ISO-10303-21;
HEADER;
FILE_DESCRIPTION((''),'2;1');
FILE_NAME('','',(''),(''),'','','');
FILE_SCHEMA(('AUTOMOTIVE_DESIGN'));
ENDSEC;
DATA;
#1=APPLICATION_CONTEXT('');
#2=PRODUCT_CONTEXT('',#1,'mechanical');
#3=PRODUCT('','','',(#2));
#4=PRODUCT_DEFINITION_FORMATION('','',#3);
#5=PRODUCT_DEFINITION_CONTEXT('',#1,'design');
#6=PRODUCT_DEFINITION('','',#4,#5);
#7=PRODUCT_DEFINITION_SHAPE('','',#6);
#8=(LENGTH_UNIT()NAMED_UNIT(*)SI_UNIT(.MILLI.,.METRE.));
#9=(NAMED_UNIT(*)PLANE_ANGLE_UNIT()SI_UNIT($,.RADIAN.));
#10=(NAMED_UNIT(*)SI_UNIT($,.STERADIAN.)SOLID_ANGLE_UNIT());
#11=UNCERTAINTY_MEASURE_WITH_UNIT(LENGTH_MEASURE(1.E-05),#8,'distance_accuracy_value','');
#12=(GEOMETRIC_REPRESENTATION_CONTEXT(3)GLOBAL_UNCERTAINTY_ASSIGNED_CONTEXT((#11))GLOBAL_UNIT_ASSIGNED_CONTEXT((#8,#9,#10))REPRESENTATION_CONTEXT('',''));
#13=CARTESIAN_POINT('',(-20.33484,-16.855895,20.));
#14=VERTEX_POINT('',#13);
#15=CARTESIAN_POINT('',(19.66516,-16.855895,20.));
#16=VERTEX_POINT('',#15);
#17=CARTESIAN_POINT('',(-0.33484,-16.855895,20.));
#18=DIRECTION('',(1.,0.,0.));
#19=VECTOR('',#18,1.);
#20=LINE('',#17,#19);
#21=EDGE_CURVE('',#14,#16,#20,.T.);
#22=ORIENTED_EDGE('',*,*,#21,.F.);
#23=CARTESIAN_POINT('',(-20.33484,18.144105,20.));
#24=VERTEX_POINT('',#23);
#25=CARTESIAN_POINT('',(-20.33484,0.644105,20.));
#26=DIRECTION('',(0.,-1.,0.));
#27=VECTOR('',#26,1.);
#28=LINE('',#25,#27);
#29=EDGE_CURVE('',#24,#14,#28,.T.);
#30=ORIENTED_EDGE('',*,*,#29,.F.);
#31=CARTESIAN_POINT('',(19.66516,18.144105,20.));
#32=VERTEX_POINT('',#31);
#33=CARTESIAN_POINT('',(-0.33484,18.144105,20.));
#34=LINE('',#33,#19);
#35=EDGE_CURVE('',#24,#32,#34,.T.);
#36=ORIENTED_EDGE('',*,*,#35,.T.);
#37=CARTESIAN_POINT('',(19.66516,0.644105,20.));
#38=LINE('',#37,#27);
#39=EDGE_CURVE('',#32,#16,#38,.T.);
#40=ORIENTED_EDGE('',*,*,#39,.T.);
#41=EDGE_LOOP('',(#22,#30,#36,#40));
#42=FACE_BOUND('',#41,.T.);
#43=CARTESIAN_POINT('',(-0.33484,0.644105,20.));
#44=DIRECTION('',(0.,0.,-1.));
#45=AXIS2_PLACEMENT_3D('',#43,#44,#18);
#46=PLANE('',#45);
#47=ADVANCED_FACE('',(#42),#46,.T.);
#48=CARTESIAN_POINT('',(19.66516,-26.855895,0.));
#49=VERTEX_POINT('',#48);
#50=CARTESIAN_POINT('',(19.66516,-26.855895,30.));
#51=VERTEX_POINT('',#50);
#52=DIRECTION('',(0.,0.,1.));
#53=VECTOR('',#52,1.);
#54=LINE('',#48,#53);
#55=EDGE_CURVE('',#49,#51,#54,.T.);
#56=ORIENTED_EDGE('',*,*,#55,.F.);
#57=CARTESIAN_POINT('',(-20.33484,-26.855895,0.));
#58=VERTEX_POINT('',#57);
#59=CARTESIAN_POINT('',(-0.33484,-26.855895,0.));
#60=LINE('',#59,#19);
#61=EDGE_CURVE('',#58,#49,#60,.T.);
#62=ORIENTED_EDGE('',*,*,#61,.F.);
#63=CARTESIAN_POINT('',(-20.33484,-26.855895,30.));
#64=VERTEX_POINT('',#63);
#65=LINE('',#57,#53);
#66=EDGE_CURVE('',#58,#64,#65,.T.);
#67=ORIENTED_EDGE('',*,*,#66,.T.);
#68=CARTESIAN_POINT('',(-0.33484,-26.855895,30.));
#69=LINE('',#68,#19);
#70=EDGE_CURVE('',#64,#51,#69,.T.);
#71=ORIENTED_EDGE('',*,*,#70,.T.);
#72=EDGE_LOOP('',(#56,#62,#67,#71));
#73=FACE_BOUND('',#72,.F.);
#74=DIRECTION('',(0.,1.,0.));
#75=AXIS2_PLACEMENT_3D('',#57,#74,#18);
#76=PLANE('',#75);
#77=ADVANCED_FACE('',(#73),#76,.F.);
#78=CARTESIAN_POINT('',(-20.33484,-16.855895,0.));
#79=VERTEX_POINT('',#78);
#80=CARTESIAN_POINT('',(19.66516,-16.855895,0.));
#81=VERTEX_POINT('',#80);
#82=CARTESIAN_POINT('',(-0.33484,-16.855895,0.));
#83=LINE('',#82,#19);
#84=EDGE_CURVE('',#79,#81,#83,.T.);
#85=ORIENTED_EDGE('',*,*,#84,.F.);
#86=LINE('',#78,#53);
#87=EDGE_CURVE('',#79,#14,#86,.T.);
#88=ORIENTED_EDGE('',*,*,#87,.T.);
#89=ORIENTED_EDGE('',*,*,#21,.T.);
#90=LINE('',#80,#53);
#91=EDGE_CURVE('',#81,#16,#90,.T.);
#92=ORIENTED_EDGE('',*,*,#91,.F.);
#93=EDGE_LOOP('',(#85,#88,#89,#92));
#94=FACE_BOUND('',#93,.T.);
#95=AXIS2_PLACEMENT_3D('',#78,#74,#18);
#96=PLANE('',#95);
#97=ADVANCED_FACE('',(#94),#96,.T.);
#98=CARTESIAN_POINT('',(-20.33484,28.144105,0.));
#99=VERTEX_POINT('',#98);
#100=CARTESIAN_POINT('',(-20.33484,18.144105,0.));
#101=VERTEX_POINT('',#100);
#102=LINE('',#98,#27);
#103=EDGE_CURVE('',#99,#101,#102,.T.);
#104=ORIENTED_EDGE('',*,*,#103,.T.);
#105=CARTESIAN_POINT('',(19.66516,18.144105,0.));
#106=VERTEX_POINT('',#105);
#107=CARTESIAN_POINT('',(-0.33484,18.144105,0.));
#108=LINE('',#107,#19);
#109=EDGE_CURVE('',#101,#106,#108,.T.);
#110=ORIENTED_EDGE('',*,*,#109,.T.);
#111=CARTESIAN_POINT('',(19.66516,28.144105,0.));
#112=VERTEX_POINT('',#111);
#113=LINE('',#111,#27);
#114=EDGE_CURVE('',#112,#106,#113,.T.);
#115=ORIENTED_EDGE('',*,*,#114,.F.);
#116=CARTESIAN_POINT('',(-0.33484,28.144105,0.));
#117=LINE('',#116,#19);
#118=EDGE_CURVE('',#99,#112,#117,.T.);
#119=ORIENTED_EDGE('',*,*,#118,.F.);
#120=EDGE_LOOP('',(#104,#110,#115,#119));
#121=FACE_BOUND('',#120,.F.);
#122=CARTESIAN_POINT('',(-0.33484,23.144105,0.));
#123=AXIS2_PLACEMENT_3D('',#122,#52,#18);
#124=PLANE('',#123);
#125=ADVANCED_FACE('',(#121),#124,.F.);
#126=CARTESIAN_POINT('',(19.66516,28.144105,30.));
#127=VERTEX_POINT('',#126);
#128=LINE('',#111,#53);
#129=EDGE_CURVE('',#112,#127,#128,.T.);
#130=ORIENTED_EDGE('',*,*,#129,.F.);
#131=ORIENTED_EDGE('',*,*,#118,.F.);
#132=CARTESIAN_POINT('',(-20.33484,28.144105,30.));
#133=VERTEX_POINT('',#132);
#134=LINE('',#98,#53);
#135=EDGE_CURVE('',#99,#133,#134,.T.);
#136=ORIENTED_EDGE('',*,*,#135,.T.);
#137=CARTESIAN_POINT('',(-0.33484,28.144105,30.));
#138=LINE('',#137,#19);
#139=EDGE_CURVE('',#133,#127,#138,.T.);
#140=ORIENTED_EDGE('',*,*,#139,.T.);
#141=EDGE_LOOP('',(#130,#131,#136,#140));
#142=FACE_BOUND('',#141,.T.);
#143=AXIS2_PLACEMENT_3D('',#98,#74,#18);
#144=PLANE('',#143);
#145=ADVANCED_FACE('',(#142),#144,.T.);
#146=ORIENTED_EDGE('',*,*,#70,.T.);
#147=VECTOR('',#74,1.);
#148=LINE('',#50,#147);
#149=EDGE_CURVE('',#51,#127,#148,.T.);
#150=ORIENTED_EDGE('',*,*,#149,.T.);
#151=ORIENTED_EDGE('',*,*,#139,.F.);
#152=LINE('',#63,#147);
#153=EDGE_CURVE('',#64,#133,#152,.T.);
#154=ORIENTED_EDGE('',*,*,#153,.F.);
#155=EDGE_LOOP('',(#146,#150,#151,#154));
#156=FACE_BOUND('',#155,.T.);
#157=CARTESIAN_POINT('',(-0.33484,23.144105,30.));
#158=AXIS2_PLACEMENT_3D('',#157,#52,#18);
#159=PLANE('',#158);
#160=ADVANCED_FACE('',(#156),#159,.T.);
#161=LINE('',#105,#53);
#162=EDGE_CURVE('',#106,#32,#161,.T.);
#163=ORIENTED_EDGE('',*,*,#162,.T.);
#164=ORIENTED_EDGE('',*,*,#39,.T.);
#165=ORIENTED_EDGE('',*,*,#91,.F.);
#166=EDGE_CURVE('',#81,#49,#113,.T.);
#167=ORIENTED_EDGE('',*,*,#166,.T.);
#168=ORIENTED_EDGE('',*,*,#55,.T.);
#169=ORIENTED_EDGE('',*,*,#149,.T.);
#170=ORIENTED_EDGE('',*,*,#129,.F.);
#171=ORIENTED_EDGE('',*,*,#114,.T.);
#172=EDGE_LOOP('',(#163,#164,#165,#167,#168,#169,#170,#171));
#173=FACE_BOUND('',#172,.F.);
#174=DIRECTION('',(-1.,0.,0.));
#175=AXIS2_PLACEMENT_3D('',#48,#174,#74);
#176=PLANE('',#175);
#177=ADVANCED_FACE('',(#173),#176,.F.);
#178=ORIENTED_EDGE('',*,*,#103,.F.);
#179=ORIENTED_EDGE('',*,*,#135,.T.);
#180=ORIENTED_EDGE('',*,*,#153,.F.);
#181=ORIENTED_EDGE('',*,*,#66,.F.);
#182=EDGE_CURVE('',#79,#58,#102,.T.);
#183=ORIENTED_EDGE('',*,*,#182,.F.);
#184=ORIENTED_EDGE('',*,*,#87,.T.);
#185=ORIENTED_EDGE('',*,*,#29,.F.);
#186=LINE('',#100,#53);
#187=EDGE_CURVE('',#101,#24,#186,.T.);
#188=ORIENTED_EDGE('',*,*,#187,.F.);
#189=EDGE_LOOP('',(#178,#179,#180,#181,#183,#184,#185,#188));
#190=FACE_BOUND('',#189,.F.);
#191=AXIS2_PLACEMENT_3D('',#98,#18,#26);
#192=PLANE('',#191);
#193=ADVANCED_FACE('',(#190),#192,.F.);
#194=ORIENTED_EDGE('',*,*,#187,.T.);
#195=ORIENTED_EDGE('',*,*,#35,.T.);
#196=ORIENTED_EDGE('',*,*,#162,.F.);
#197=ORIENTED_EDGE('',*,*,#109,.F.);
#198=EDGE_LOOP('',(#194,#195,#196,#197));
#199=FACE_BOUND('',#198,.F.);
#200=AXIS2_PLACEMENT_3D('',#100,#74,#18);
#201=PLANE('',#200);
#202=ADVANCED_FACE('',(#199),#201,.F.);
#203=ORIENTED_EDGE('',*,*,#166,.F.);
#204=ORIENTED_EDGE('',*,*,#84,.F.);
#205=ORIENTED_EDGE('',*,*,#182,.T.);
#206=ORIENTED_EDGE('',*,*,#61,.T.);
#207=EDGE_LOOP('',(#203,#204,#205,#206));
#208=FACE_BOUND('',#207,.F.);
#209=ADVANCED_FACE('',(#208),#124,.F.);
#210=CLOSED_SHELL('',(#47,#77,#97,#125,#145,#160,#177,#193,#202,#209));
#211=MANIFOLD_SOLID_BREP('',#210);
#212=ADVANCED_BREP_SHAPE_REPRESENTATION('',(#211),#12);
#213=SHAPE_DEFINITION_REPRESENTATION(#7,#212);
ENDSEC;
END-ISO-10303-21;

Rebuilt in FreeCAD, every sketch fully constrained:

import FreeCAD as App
import Part
import Sketcher


def add_polygon(sketch, points):
    """Adds a closed chain of lines whose ends are joined by coincident constraints."""
    first, n = sketch.GeometryCount, len(points)
    for a, b in zip(points, points[1:] + points[:1]):
        sketch.addGeometry(Part.LineSegment(App.Vector(*a, 0), App.Vector(*b, 0)), False)
    for i in range(n):
        sketch.addConstraint(Sketcher.Constraint("Coincident", first + i, 2, first + (i + 1) % n, 1))

doc = App.newDocument("Part")
body = doc.addObject("PartDesign::Body", "Body")

# Sketch on XY plane
sketch1 = body.newObject("Sketcher::SketchObject", "Sketch")
sketch1.AttachmentSupport = (doc.getObject("XY_Plane"), [""])
sketch1.MapMode = "FlatFace"
add_polygon(sketch1, [(-20, 18), (-20, -17), (20, -17), (20, 18)])  # lines 0-3
sketch1.addConstraint([
    Sketcher.Constraint("Vertical", 0),
    Sketcher.Constraint("Horizontal", 1),
    Sketcher.Constraint("Vertical", 2),
    Sketcher.Constraint("Horizontal", 3),
    Sketcher.Constraint("DistanceX", 1, 1, 1, 2, 40.0),
    Sketcher.Constraint("DistanceY", 0, 2, 0, 1, 35.0),
    Sketcher.Constraint("DistanceX", 0, 2, -1, 1, 20.33484),
    Sketcher.Constraint("DistanceY", 0, 2, -1, 1, 16.855895),
])
pad1 = body.newObject("PartDesign::Pad", "Pad")
pad1.Profile = sketch1
pad1.Length = 30

# Sketch on XY plane
sketch2 = body.newObject("Sketcher::SketchObject", "Sketch001")
sketch2.AttachmentSupport = (doc.getObject("XY_Plane"), [""])
sketch2.MapMode = "FlatFace"
add_polygon(sketch2, [(-20, 28), (-20, -27), (20, -27), (20, 28)])  # lines 0-3
sketch2.addConstraint([
    Sketcher.Constraint("Vertical", 0),
    Sketcher.Constraint("Horizontal", 1),
    Sketcher.Constraint("Vertical", 2),
    Sketcher.Constraint("Horizontal", 3),
    Sketcher.Constraint("DistanceX", 1, 1, 1, 2, 40.0),
    Sketcher.Constraint("DistanceY", 0, 2, 0, 1, 55.0),
    Sketcher.Constraint("DistanceX", 0, 2, -1, 1, 20.33484),
    Sketcher.Constraint("DistanceY", 0, 2, -1, 1, 26.855895),
])
pad2 = body.newObject("PartDesign::Pad", "Pad001")
pad2.Profile = sketch2
pad2.Length = 30

# Sketch on XY plane
sketch3 = body.newObject("Sketcher::SketchObject", "Sketch002")
sketch3.AttachmentSupport = (doc.getObject("XY_Plane"), [""])
sketch3.MapMode = "FlatFace"
add_polygon(sketch3, [(-20, -17), (-20, 18), (20, 18), (20, -17)])  # lines 0-3
sketch3.addConstraint([
    Sketcher.Constraint("Vertical", 0),
    Sketcher.Constraint("Horizontal", 1),
    Sketcher.Constraint("Vertical", 2),
    Sketcher.Constraint("Horizontal", 3),
    Sketcher.Constraint("DistanceX", 1, 1, 1, 2, 40.0),
    Sketcher.Constraint("DistanceY", 0, 1, 0, 2, 35.0),
    Sketcher.Constraint("DistanceX", 0, 2, -1, 1, 20.33484),
    Sketcher.Constraint("DistanceY", -1, 1, 0, 2, 18.144105),
])
pocket1 = body.newObject("PartDesign::Pocket", "Pocket")
pocket1.Profile = sketch3
pocket1.Length = 20
pocket1.Reversed = True

doc.recompute()
